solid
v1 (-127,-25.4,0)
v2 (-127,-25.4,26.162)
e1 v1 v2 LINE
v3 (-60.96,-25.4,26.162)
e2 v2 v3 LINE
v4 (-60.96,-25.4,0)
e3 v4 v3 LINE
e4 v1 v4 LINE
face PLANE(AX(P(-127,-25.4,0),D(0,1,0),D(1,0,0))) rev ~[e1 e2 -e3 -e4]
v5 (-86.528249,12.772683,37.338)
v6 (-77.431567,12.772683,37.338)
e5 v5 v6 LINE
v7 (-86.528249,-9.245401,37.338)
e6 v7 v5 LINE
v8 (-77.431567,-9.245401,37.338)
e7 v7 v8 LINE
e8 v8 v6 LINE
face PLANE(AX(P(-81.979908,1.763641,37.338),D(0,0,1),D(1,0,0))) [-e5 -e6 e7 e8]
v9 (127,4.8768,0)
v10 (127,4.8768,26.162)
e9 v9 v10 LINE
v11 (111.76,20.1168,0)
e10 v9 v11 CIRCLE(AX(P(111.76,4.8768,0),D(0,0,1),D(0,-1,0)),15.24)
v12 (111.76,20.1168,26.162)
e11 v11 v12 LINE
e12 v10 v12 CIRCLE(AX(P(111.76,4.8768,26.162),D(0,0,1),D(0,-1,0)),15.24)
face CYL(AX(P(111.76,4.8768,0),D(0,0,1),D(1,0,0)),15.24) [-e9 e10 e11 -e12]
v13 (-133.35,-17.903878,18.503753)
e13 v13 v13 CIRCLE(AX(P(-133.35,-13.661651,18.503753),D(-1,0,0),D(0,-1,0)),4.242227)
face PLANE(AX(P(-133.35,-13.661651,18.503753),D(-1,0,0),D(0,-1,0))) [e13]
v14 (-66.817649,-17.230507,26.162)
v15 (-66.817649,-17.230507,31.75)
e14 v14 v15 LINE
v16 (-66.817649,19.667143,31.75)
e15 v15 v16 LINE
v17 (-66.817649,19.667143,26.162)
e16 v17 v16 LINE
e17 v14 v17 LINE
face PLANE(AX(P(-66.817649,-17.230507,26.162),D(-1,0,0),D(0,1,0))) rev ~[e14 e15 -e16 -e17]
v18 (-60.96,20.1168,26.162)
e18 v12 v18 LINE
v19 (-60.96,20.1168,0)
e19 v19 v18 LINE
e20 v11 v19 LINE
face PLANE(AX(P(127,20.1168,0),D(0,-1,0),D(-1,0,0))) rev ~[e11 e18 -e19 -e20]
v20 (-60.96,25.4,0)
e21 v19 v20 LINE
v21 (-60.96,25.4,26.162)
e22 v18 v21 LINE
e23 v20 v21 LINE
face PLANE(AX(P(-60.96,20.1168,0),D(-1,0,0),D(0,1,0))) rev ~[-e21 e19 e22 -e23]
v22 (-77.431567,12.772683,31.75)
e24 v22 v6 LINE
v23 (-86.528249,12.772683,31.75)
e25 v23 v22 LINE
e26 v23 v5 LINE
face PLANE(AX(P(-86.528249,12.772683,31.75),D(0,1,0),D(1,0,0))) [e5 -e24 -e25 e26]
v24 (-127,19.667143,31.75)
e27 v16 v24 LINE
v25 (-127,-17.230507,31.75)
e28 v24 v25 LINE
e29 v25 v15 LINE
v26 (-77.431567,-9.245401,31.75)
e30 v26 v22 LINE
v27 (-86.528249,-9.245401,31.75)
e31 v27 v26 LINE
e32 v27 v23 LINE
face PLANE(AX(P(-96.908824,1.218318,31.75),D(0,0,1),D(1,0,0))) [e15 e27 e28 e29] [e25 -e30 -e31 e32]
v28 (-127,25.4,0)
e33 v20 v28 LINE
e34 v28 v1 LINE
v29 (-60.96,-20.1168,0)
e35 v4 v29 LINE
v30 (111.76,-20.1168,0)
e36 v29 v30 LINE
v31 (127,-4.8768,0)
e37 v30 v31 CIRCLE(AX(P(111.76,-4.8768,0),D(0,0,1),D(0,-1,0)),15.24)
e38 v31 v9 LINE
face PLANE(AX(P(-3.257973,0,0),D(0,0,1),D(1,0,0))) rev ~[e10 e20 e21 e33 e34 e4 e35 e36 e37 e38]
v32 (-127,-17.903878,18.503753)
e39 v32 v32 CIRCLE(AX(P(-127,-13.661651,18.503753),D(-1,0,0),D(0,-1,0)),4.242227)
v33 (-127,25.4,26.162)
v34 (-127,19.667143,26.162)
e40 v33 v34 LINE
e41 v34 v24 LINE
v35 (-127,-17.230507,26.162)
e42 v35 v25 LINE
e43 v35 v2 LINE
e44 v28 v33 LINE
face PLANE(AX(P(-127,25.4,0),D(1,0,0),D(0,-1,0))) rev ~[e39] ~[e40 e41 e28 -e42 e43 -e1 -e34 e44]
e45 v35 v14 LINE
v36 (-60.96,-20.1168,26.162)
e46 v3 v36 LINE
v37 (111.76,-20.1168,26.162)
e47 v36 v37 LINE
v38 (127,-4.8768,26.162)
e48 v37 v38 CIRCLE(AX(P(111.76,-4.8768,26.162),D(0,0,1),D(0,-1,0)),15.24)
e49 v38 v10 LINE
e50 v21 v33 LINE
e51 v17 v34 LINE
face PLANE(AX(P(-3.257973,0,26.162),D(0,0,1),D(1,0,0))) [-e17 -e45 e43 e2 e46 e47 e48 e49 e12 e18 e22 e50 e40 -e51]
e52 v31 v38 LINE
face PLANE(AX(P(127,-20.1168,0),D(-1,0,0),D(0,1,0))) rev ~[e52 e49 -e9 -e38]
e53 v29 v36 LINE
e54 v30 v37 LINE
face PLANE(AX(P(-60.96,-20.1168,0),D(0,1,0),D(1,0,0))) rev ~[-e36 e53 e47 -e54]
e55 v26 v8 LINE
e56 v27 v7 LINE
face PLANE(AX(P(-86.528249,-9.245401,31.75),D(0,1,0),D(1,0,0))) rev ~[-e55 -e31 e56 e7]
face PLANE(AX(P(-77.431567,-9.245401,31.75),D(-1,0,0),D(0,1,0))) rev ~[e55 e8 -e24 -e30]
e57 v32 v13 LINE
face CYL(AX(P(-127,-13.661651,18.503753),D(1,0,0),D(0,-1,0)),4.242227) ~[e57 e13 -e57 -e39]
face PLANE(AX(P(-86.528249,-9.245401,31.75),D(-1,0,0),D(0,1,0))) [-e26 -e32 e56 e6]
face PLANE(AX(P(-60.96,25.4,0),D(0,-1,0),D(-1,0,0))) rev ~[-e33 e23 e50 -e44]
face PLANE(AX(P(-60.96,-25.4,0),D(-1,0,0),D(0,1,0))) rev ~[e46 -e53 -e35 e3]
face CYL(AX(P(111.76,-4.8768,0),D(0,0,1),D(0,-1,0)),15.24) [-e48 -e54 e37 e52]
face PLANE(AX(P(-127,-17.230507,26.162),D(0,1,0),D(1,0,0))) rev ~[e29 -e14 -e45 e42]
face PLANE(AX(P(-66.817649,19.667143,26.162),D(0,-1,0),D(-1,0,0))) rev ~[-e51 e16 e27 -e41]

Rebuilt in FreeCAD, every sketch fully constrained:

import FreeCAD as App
import Part
import Sketcher
Q = App.Units.Quantity


def edges_at(feature, points):
    """Names of the edges that pass closest to the given points."""
    edges = feature.Shape.Edges
    near = lambda p: min(range(len(edges)), key=lambda i: edges[i].distToShape(Part.Vertex(*p))[0])
    return sorted({f"Edge{near(p) + 1}" for p in points})

doc = App.newDocument("Part")
params = doc.addObject("Spreadsheet::Sheet", "Params")
for row, (alias, value) in enumerate([
    ("sketch1_height", "2 in"),
    ("sketch1_width", "2.6 in"),
    ("sketch1_width2", "7.4 in"),
    ("sketch1_height2", "0.208 in"),
    ("pad1_length", "1.03 in"),
    ("pad2_length", "0.25 in"),
    ("pad3_length", "0.22 in"),
    ("pad4_length", "0.22 in"),
    ("fillet_radius", "0.6 in"),
], start=1):
    params.set(f"A{row}", alias)
    params.set(f"B{row}", "=" + value)
    params.setAlias(f"B{row}", alias)

body = doc.addObject("PartDesign::Body", "Body")

# Sketch on XY plane
sketch1 = doc.addObject("Sketcher::SketchObject", "Sketch")
body.addObject(sketch1)
sketch1.AttachmentSupport = (doc.XY_Plane, [""])
sketch1.MapMode = "FlatFace"
sketch1.addGeometry(Part.LineSegment(App.Vector(-127, -25, 0), App.Vector(-61, -25, 0)), False)
sketch1.addGeometry(Part.LineSegment(App.Vector(-61, -25, 0), App.Vector(-61, -20, 0)), False)
sketch1.addGeometry(Part.LineSegment(App.Vector(-61, -20, 0), App.Vector(127, -20, 0)), False)
sketch1.addGeometry(Part.LineSegment(App.Vector(127, -20, 0), App.Vector(127, 20, 0)), False)
sketch1.addGeometry(Part.LineSegment(App.Vector(127, 20, 0), App.Vector(-61, 20, 0)), False)
sketch1.addGeometry(Part.LineSegment(App.Vector(-61, 20, 0), App.Vector(-61, 25, 0)), False)
sketch1.addGeometry(Part.LineSegment(App.Vector(-61, 25, 0), App.Vector(-127, 25, 0)), False)
sketch1.addGeometry(Part.LineSegment(App.Vector(-127, 25, 0), App.Vector(-127, -25, 0)), False)
sketch1.addConstraint(Sketcher.Constraint("Coincident", 0, 2, 1, 1))
sketch1.addConstraint(Sketcher.Constraint("Coincident", 1, 2, 2, 1))
sketch1.addConstraint(Sketcher.Constraint("Coincident", 2, 2, 3, 1))
sketch1.addConstraint(Sketcher.Constraint("Coincident", 3, 2, 4, 1))
sketch1.addConstraint(Sketcher.Constraint("Coincident", 4, 2, 5, 1))
sketch1.addConstraint(Sketcher.Constraint("Coincident", 5, 2, 6, 1))
sketch1.addConstraint(Sketcher.Constraint("Coincident", 6, 2, 7, 1))
sketch1.addConstraint(Sketcher.Constraint("Coincident", 7, 2, 0, 1))
sketch1.addConstraint(Sketcher.Constraint("Horizontal", 0))
sketch1.addConstraint(Sketcher.Constraint("Vertical", 1))
sketch1.addConstraint(Sketcher.Constraint("Horizontal", 2))
sketch1.addConstraint(Sketcher.Constraint("Vertical", 3))
sketch1.addConstraint(Sketcher.Constraint("Horizontal", 4))
sketch1.addConstraint(Sketcher.Constraint("Vertical", 5))
sketch1.addConstraint(Sketcher.Constraint("Horizontal", 6))
sketch1.addConstraint(Sketcher.Constraint("Vertical", 7))
sketch1.addConstraint(Sketcher.Constraint("Symmetric", 1, 2, 4, 2, -1))
sketch1.addConstraint(Sketcher.Constraint("Equal", 1, 5))
sketch1.addConstraint(Sketcher.Constraint("DistanceY", 7, 2, 7, 1, Q("2 in")))
sketch1.addConstraint(Sketcher.Constraint("DistanceX", 0, 1, 0, 2, Q("2.6 in")))
sketch1.addConstraint(Sketcher.Constraint("DistanceX", 2, 1, 2, 2, Q("7.4 in")))
sketch1.addConstraint(Sketcher.Constraint("DistanceX", -1, 1, 2, 2, Q("5 in")))
sketch1.addConstraint(Sketcher.Constraint("DistanceY", 1, 1, 1, 2, Q("0.208 in")))
sketch1.setExpression("Constraints[18]", "Params.sketch1_height")
sketch1.setExpression("Constraints[19]", "Params.sketch1_width")
sketch1.setExpression("Constraints[20]", "Params.sketch1_width2")
sketch1.setExpression("Constraints[22]", "Params.sketch1_height2")
pad1 = doc.addObject("PartDesign::Pad", "Pad")
body.addObject(pad1)
pad1.Profile = sketch1
pad1.setExpression("Length", "Params.pad1_length")

# Sketch on YZ plane
sketch2 = doc.addObject("Sketcher::SketchObject", "Sketch001")
body.addObject(sketch2)
sketch2.AttachmentSupport = (doc.YZ_Plane, [""])
sketch2.MapMode = "FlatFace"
sketch2.AttachmentOffset = App.Placement(App.Vector(0, 0, -5 * 25.4), App.Rotation())
sketch2.addGeometry(Part.Circle(App.Vector(-13.7, 18.5, 0), App.Vector(0, 0, 1), 4.2), False)
sketch2.addConstraint(Sketcher.Constraint("Diameter", 0, 8.484454))
sketch2.addConstraint(Sketcher.Constraint("DistanceX", 0, 3, -1, 1, 13.661651))
sketch2.addConstraint(Sketcher.Constraint("DistanceY", -1, 1, 0, 3, 18.503753))
pad2 = doc.addObject("PartDesign::Pad", "Pad001")
body.addObject(pad2)
pad2.Profile = sketch2
pad2.setExpression("Length", "Params.pad2_length")
pad2.Reversed = True

# Sketch on XY plane
sketch3 = doc.addObject("Sketcher::SketchObject", "Sketch002")
body.addObject(sketch3)
sketch3.AttachmentSupport = (doc.XY_Plane, [""])
sketch3.MapMode = "FlatFace"
sketch3.AttachmentOffset = App.Placement(App.Vector(0, 0, 1.03 * 25.4), App.Rotation())
sketch3.addGeometry(Part.LineSegment(App.Vector(-67, 20, 0), App.Vector(-127, 20, 0)), False)
sketch3.addGeometry(Part.LineSegment(App.Vector(-127, 20, 0), App.Vector(-127, -17, 0)), False)
sketch3.addGeometry(Part.LineSegment(App.Vector(-127, -17, 0), App.Vector(-67, -17, 0)), False)
sketch3.addGeometry(Part.LineSegment(App.Vector(-67, -17, 0), App.Vector(-67, 20, 0)), False)
sketch3.addConstraint(Sketcher.Constraint("Coincident", 0, 2, 1, 1))
sketch3.addConstraint(Sketcher.Constraint("Coincident", 1, 2, 2, 1))
sketch3.addConstraint(Sketcher.Constraint("Coincident", 2, 2, 3, 1))
sketch3.addConstraint(Sketcher.Constraint("Coincident", 3, 2, 0, 1))
sketch3.addConstraint(Sketcher.Constraint("Horizontal", 0))
sketch3.addConstraint(Sketcher.Constraint("Vertical", 1))
sketch3.addConstraint(Sketcher.Constraint("Horizontal", 2))
sketch3.addConstraint(Sketcher.Constraint("Vertical", 3))
sketch3.addConstraint(Sketcher.Constraint("DistanceX", 0, 2, -1, 1, Q("5 in")))
sketch3.addConstraint(Sketcher.Constraint("DistanceX", 0, 2, 0, 1, 60.182351))
sketch3.addConstraint(Sketcher.Constraint("DistanceY", 1, 2, 1, 1, 36.89765))
sketch3.addConstraint(Sketcher.Constraint("DistanceY", -1, 1, 0, 2, 19.667143))
pad3 = doc.addObject("PartDesign::Pad", "Pad002")
body.addObject(pad3)
pad3.Profile = sketch3
pad3.setExpression("Length", "Params.pad3_length")

# Sketch on XY plane
sketch4 = doc.addObject("Sketcher::SketchObject", "Sketch003")
body.addObject(sketch4)
sketch4.AttachmentSupport = (doc.XY_Plane, [""])
sketch4.MapMode = "FlatFace"
sketch4.AttachmentOffset = App.Placement(App.Vector(0, 0, 1.25 * 25.4), App.Rotation())
sketch4.addGeometry(Part.LineSegment(App.Vector(-87, 13, 0), App.Vector(-87, -9, 0)), False)
sketch4.addGeometry(Part.LineSegment(App.Vector(-87, -9, 0), App.Vector(-77, -9, 0)), False)
sketch4.addGeometry(Part.LineSegment(App.Vector(-77, -9, 0), App.Vector(-77, 13, 0)), False)
sketch4.addGeometry(Part.LineSegment(App.Vector(-77, 13, 0), App.Vector(-87, 13, 0)), False)
sketch4.addConstraint(Sketcher.Constraint("Coincident", 0, 2, 1, 1))
sketch4.addConstraint(Sketcher.Constraint("Coincident", 1, 2, 2, 1))
sketch4.addConstraint(Sketcher.Constraint("Coincident", 2, 2, 3, 1))
sketch4.addConstraint(Sketcher.Constraint("Coincident", 3, 2, 0, 1))
sketch4.addConstraint(Sketcher.Constraint("Vertical", 0))
sketch4.addConstraint(Sketcher.Constraint("Horizontal", 1))
sketch4.addConstraint(Sketcher.Constraint("Vertical", 2))
sketch4.addConstraint(Sketcher.Constraint("Horizontal", 3))
sketch4.addConstraint(Sketcher.Constraint("DistanceY", 0, 2, -1, 1, 9.245401))
sketch4.addConstraint(Sketcher.Constraint("DistanceX", 1, 1, 1, 2, 9.096682))
sketch4.addConstraint(Sketcher.Constraint("DistanceY", 0, 2, 0, 1, 22.018083))
sketch4.addConstraint(Sketcher.Constraint("DistanceX", 0, 2, -1, 1, 86.528249))
pad4 = doc.addObject("PartDesign::Pad", "Pad003")
body.addObject(pad4)
pad4.Profile = sketch4
pad4.setExpression("Length", "Params.pad4_length")
doc.recompute()

fillet = doc.addObject("PartDesign::Fillet", "Fillet")
body.addObject(fillet)
fillet.Base = (pad4, edges_at(pad4, [(127, -20.117, 13.081), (127, 20.117, 13.081)]))
fillet.setExpression("Radius", "Params.fillet_radius")

doc.recompute()
